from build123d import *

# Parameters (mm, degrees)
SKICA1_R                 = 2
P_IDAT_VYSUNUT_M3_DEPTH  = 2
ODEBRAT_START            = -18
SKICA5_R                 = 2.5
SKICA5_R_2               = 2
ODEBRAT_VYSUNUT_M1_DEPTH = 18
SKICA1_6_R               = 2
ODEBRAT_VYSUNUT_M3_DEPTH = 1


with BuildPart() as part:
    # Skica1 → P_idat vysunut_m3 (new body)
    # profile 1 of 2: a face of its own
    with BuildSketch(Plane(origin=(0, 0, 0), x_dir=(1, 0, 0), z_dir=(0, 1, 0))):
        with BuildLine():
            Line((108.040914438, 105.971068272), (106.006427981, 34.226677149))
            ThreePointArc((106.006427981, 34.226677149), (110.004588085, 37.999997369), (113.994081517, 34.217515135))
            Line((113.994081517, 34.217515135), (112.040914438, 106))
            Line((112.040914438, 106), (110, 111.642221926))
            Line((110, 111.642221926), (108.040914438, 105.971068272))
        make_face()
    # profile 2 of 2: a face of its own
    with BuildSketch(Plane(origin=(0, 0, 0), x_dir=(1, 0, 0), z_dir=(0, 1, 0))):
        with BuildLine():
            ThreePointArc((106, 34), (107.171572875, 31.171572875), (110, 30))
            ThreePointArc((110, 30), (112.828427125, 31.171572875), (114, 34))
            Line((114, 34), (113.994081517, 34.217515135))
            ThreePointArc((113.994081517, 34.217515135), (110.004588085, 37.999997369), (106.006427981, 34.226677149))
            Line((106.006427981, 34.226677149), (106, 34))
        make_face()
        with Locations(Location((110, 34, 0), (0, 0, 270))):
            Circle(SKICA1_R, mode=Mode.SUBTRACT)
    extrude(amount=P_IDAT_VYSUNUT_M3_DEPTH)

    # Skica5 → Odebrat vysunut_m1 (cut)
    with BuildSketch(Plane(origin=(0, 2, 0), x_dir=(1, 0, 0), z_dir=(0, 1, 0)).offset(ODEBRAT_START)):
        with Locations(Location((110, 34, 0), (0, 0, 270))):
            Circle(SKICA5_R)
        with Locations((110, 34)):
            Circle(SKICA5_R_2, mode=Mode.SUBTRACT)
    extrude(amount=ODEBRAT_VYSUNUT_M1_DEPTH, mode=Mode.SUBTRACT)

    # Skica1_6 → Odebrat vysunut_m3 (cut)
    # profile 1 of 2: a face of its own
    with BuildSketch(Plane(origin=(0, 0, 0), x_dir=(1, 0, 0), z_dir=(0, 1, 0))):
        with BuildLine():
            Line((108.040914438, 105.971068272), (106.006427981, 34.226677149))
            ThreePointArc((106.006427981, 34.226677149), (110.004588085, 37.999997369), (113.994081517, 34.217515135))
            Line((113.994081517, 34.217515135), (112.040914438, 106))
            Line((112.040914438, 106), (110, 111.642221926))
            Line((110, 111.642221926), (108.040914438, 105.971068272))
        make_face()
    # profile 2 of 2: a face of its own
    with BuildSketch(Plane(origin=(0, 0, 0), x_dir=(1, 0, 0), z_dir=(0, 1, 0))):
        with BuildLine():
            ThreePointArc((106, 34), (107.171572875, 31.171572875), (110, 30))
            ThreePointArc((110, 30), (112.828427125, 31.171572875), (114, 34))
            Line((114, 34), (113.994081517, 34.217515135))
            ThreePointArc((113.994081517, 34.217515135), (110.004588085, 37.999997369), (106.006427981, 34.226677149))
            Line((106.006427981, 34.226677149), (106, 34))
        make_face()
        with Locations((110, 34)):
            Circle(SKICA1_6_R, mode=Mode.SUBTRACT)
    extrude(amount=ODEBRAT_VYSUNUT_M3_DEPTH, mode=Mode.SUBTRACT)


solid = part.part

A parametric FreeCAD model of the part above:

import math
import FreeCAD as App
import Part
import Sketcher
Q = App.Units.Quantity

doc = App.newDocument("Part")
params = doc.addObject("Spreadsheet::Sheet", "Params")
for row, (alias, value) in enumerate([
    ("sketch1_diameter", "4 mm"),
    ("sketch1_radius", "4 mm"),
    ("sketch1_length", "6 mm"),
    ("pad1_length", "2 mm"),
    ("sketch2_diameter", "5 mm"),
    ("sketch2_diameter2", "4 mm"),
    ("pocket1_length", "18 mm"),
    ("sketch3_diameter", "4 mm"),
    ("sketch3_radius", "4 mm"),
    ("sketch3_length", "6 mm"),
    ("pocket2_length", "1 mm"),
], start=1):
    params.set(f"A{row}", alias)
    params.set(f"B{row}", "=" + value)
    params.setAlias(f"B{row}", alias)

body = doc.addObject("PartDesign::Body", "Body")

sketch1 = doc.addObject("Sketcher::SketchObject", "Sketch")
body.addObject(sketch1)
sketch1.AttachmentSupport = (doc.XZ_Plane, [""])
sketch1.MapMode = "FlatFace"
sketch1.addGeometry([
    Part.LineSegment(App.Vector(108.040914, -105.971068, 0), App.Vector(106.006428, -34.226677, 0)),
    Part.LineSegment(App.Vector(106.006428, -34.226677, 0), App.Vector(106, -34, 0)),
    Part.ArcOfCircle(Part.Circle(App.Vector(110, -34, 0), App.Vector(0, 0, 1), 4), math.radians(90), math.radians(180)),
    Part.ArcOfCircle(Part.Circle(App.Vector(110, -34, 0), App.Vector(0, 0, 1), 4), math.radians(0), math.radians(90)),
    Part.LineSegment(App.Vector(114, -34, 0), App.Vector(113.994082, -34.217515, 0)),
    Part.LineSegment(App.Vector(113.994082, -34.217515, 0), App.Vector(112.040914, -106, 0)),
    Part.LineSegment(App.Vector(112.040914, -106, 0), App.Vector(110, -111.642222, 0)),
    Part.LineSegment(App.Vector(110, -111.642222, 0), App.Vector(108.040914, -105.971068, 0)),
    Part.Circle(App.Vector(110, -34, 0), App.Vector(0, 0, 1), 2),
], False)
sketch1.addConstraint([
    Sketcher.Constraint("Coincident", 0, 2, 1, 1),
    Sketcher.Constraint("Coincident", 1, 2, 2, 2),
    Sketcher.Constraint("Tangent", 2, 1, 3, 2),
    Sketcher.Constraint("Coincident", 3, 1, 4, 1),
    Sketcher.Constraint("Coincident", 4, 2, 5, 1),
    Sketcher.Constraint("Coincident", 5, 2, 6, 1),
    Sketcher.Constraint("Coincident", 6, 2, 7, 1),
    Sketcher.Constraint("Coincident", 7, 2, 0, 1),
    Sketcher.Constraint("Coincident", 8, 3, 2, 3),
    Sketcher.Constraint("Equal", 2, 3),
    Sketcher.Constraint("Parallel", 0, 1),
    Sketcher.Constraint("Parallel", 4, 5),
    Sketcher.Constraint("Horizontal", 8, 3, 1, 2),
    Sketcher.Constraint("Horizontal", 1, 2, 3, 1),
    Sketcher.Constraint("Vertical", 8, 3, 2, 1),
    Sketcher.Constraint("Vertical", 2, 1, 6, 2),
    Sketcher.Constraint("Equal", 6, 7),
    Sketcher.Constraint("Diameter", 8, Q("4 mm")),
    Sketcher.Constraint("Radius", 2, Q("4 mm")),
    Sketcher.Constraint("Distance", 6, Q("6 mm")),
    Sketcher.Constraint("DistanceX", -1, 1, 2, 3, Q("110 mm")),
    Sketcher.Constraint("DistanceY", 2, 3, -1, 1, Q("34 mm")),
    Sketcher.Constraint("DistanceY", 5, 2, -1, 1, Q("106 mm")),
    Sketcher.Constraint("DistanceX", 7, 2, 5, 2, Q("4 mm")),
    Sketcher.Constraint("Distance", 0, Q("71.773232 mm")),
    Sketcher.Constraint("Distance", 1, Q("0.226768 mm")),
    Sketcher.Constraint("DistanceX", -1, 1, 4, 2, Q("113.994082 mm")),
])
sketch1.setExpression("Constraints[17]", "Params.sketch1_diameter")
sketch1.setExpression("Constraints[18]", "Params.sketch1_radius")
sketch1.setExpression("Constraints[19]", "Params.sketch1_length")
pad1 = doc.addObject("PartDesign::Pad", "Pad")
body.addObject(pad1)
pad1.Profile = sketch1
pad1.setExpression("Length", "Params.pad1_length")
pad1.Reversed = True

sketch2 = doc.addObject("Sketcher::SketchObject", "Sketch001")
body.addObject(sketch2)
sketch2.AttachmentSupport = (doc.XZ_Plane, [""])
sketch2.MapMode = "FlatFace"
sketch2.AttachmentOffset = App.Placement(App.Vector(0, 0, 16), App.Rotation())
sketch2.addGeometry([
    Part.Circle(App.Vector(110, -34, 0), App.Vector(0, 0, 1), 2.5),
    Part.Circle(App.Vector(110, -34, 0), App.Vector(0, 0, 1), 2),
], False)
sketch2.addConstraint([
    Sketcher.Constraint("Coincident", 1, 3, 0, 3),
    Sketcher.Constraint("Diameter", 0, Q("5 mm")),
    Sketcher.Constraint("Diameter", 1, Q("4 mm")),
    Sketcher.Constraint("DistanceX", -1, 1, 0, 3, Q("110 mm")),
    Sketcher.Constraint("DistanceY", 0, 3, -1, 1, Q("34 mm")),
])
sketch2.setExpression("Constraints[1]", "Params.sketch2_diameter")
sketch2.setExpression("Constraints[2]", "Params.sketch2_diameter2")
pocket1 = doc.addObject("PartDesign::Pocket", "Pocket")
body.addObject(pocket1)
pocket1.Profile = sketch2
pocket1.setExpression("Length", "Params.pocket1_length")

sketch3 = doc.addObject("Sketcher::SketchObject", "Sketch002")
body.addObject(sketch3)
sketch3.AttachmentSupport = (doc.XZ_Plane, [""])
sketch3.MapMode = "FlatFace"
sketch3.addGeometry([
    Part.LineSegment(App.Vector(108.040914, -105.971068, 0), App.Vector(106.006428, -34.226677, 0)),
    Part.LineSegment(App.Vector(106.006428, -34.226677, 0), App.Vector(106, -34, 0)),
    Part.ArcOfCircle(Part.Circle(App.Vector(110, -34, 0), App.Vector(0, 0, 1), 4), math.radians(90), math.radians(180)),
    Part.ArcOfCircle(Part.Circle(App.Vector(110, -34, 0), App.Vector(0, 0, 1), 4), math.radians(0), math.radians(90)),
    Part.LineSegment(App.Vector(114, -34, 0), App.Vector(113.994082, -34.217515, 0)),
    Part.LineSegment(App.Vector(113.994082, -34.217515, 0), App.Vector(112.040914, -106, 0)),
    Part.LineSegment(App.Vector(112.040914, -106, 0), App.Vector(110, -111.642222, 0)),
    Part.LineSegment(App.Vector(110, -111.642222, 0), App.Vector(108.040914, -105.971068, 0)),
    Part.Circle(App.Vector(110, -34, 0), App.Vector(0, 0, 1), 2),
], False)
sketch3.addConstraint([
    Sketcher.Constraint("Coincident", 0, 2, 1, 1),
    Sketcher.Constraint("Coincident", 1, 2, 2, 2),
    Sketcher.Constraint("Tangent", 2, 1, 3, 2),
    Sketcher.Constraint("Coincident", 3, 1, 4, 1),
    Sketcher.Constraint("Coincident", 4, 2, 5, 1),
    Sketcher.Constraint("Coincident", 5, 2, 6, 1),
    Sketcher.Constraint("Coincident", 6, 2, 7, 1),
    Sketcher.Constraint("Coincident", 7, 2, 0, 1),
    Sketcher.Constraint("Coincident", 8, 3, 2, 3),
    Sketcher.Constraint("Equal", 2, 3),
    Sketcher.Constraint("Parallel", 0, 1),
    Sketcher.Constraint("Parallel", 4, 5),
    Sketcher.Constraint("Horizontal", 8, 3, 1, 2),
    Sketcher.Constraint("Horizontal", 1, 2, 3, 1),
    Sketcher.Constraint("Vertical", 8, 3, 2, 1),
    Sketcher.Constraint("Vertical", 2, 1, 6, 2),
    Sketcher.Constraint("Equal", 6, 7),
    Sketcher.Constraint("Diameter", 8, Q("4 mm")),
    Sketcher.Constraint("Radius", 2, Q("4 mm")),
    Sketcher.Constraint("Distance", 6, Q("6 mm")),
    Sketcher.Constraint("DistanceX", -1, 1, 2, 3, Q("110 mm")),
    Sketcher.Constraint("DistanceY", 2, 3, -1, 1, Q("34 mm")),
    Sketcher.Constraint("DistanceY", 5, 2, -1, 1, Q("106 mm")),
    Sketcher.Constraint("DistanceX", 7, 2, 5, 2, Q("4 mm")),
    Sketcher.Constraint("Distance", 0, Q("71.773232 mm")),
    Sketcher.Constraint("Distance", 1, Q("0.226768 mm")),
    Sketcher.Constraint("DistanceX", -1, 1, 4, 2, Q("113.994082 mm")),
])
sketch3.setExpression("Constraints[17]", "Params.sketch3_diameter")
sketch3.setExpression("Constraints[18]", "Params.sketch3_radius")
sketch3.setExpression("Constraints[19]", "Params.sketch3_length")
pocket2 = doc.addObject("PartDesign::Pocket", "Pocket001")
body.addObject(pocket2)
pocket2.Profile = sketch3
pocket2.setExpression("Length", "Params.pocket2_length")

doc.recompute()
